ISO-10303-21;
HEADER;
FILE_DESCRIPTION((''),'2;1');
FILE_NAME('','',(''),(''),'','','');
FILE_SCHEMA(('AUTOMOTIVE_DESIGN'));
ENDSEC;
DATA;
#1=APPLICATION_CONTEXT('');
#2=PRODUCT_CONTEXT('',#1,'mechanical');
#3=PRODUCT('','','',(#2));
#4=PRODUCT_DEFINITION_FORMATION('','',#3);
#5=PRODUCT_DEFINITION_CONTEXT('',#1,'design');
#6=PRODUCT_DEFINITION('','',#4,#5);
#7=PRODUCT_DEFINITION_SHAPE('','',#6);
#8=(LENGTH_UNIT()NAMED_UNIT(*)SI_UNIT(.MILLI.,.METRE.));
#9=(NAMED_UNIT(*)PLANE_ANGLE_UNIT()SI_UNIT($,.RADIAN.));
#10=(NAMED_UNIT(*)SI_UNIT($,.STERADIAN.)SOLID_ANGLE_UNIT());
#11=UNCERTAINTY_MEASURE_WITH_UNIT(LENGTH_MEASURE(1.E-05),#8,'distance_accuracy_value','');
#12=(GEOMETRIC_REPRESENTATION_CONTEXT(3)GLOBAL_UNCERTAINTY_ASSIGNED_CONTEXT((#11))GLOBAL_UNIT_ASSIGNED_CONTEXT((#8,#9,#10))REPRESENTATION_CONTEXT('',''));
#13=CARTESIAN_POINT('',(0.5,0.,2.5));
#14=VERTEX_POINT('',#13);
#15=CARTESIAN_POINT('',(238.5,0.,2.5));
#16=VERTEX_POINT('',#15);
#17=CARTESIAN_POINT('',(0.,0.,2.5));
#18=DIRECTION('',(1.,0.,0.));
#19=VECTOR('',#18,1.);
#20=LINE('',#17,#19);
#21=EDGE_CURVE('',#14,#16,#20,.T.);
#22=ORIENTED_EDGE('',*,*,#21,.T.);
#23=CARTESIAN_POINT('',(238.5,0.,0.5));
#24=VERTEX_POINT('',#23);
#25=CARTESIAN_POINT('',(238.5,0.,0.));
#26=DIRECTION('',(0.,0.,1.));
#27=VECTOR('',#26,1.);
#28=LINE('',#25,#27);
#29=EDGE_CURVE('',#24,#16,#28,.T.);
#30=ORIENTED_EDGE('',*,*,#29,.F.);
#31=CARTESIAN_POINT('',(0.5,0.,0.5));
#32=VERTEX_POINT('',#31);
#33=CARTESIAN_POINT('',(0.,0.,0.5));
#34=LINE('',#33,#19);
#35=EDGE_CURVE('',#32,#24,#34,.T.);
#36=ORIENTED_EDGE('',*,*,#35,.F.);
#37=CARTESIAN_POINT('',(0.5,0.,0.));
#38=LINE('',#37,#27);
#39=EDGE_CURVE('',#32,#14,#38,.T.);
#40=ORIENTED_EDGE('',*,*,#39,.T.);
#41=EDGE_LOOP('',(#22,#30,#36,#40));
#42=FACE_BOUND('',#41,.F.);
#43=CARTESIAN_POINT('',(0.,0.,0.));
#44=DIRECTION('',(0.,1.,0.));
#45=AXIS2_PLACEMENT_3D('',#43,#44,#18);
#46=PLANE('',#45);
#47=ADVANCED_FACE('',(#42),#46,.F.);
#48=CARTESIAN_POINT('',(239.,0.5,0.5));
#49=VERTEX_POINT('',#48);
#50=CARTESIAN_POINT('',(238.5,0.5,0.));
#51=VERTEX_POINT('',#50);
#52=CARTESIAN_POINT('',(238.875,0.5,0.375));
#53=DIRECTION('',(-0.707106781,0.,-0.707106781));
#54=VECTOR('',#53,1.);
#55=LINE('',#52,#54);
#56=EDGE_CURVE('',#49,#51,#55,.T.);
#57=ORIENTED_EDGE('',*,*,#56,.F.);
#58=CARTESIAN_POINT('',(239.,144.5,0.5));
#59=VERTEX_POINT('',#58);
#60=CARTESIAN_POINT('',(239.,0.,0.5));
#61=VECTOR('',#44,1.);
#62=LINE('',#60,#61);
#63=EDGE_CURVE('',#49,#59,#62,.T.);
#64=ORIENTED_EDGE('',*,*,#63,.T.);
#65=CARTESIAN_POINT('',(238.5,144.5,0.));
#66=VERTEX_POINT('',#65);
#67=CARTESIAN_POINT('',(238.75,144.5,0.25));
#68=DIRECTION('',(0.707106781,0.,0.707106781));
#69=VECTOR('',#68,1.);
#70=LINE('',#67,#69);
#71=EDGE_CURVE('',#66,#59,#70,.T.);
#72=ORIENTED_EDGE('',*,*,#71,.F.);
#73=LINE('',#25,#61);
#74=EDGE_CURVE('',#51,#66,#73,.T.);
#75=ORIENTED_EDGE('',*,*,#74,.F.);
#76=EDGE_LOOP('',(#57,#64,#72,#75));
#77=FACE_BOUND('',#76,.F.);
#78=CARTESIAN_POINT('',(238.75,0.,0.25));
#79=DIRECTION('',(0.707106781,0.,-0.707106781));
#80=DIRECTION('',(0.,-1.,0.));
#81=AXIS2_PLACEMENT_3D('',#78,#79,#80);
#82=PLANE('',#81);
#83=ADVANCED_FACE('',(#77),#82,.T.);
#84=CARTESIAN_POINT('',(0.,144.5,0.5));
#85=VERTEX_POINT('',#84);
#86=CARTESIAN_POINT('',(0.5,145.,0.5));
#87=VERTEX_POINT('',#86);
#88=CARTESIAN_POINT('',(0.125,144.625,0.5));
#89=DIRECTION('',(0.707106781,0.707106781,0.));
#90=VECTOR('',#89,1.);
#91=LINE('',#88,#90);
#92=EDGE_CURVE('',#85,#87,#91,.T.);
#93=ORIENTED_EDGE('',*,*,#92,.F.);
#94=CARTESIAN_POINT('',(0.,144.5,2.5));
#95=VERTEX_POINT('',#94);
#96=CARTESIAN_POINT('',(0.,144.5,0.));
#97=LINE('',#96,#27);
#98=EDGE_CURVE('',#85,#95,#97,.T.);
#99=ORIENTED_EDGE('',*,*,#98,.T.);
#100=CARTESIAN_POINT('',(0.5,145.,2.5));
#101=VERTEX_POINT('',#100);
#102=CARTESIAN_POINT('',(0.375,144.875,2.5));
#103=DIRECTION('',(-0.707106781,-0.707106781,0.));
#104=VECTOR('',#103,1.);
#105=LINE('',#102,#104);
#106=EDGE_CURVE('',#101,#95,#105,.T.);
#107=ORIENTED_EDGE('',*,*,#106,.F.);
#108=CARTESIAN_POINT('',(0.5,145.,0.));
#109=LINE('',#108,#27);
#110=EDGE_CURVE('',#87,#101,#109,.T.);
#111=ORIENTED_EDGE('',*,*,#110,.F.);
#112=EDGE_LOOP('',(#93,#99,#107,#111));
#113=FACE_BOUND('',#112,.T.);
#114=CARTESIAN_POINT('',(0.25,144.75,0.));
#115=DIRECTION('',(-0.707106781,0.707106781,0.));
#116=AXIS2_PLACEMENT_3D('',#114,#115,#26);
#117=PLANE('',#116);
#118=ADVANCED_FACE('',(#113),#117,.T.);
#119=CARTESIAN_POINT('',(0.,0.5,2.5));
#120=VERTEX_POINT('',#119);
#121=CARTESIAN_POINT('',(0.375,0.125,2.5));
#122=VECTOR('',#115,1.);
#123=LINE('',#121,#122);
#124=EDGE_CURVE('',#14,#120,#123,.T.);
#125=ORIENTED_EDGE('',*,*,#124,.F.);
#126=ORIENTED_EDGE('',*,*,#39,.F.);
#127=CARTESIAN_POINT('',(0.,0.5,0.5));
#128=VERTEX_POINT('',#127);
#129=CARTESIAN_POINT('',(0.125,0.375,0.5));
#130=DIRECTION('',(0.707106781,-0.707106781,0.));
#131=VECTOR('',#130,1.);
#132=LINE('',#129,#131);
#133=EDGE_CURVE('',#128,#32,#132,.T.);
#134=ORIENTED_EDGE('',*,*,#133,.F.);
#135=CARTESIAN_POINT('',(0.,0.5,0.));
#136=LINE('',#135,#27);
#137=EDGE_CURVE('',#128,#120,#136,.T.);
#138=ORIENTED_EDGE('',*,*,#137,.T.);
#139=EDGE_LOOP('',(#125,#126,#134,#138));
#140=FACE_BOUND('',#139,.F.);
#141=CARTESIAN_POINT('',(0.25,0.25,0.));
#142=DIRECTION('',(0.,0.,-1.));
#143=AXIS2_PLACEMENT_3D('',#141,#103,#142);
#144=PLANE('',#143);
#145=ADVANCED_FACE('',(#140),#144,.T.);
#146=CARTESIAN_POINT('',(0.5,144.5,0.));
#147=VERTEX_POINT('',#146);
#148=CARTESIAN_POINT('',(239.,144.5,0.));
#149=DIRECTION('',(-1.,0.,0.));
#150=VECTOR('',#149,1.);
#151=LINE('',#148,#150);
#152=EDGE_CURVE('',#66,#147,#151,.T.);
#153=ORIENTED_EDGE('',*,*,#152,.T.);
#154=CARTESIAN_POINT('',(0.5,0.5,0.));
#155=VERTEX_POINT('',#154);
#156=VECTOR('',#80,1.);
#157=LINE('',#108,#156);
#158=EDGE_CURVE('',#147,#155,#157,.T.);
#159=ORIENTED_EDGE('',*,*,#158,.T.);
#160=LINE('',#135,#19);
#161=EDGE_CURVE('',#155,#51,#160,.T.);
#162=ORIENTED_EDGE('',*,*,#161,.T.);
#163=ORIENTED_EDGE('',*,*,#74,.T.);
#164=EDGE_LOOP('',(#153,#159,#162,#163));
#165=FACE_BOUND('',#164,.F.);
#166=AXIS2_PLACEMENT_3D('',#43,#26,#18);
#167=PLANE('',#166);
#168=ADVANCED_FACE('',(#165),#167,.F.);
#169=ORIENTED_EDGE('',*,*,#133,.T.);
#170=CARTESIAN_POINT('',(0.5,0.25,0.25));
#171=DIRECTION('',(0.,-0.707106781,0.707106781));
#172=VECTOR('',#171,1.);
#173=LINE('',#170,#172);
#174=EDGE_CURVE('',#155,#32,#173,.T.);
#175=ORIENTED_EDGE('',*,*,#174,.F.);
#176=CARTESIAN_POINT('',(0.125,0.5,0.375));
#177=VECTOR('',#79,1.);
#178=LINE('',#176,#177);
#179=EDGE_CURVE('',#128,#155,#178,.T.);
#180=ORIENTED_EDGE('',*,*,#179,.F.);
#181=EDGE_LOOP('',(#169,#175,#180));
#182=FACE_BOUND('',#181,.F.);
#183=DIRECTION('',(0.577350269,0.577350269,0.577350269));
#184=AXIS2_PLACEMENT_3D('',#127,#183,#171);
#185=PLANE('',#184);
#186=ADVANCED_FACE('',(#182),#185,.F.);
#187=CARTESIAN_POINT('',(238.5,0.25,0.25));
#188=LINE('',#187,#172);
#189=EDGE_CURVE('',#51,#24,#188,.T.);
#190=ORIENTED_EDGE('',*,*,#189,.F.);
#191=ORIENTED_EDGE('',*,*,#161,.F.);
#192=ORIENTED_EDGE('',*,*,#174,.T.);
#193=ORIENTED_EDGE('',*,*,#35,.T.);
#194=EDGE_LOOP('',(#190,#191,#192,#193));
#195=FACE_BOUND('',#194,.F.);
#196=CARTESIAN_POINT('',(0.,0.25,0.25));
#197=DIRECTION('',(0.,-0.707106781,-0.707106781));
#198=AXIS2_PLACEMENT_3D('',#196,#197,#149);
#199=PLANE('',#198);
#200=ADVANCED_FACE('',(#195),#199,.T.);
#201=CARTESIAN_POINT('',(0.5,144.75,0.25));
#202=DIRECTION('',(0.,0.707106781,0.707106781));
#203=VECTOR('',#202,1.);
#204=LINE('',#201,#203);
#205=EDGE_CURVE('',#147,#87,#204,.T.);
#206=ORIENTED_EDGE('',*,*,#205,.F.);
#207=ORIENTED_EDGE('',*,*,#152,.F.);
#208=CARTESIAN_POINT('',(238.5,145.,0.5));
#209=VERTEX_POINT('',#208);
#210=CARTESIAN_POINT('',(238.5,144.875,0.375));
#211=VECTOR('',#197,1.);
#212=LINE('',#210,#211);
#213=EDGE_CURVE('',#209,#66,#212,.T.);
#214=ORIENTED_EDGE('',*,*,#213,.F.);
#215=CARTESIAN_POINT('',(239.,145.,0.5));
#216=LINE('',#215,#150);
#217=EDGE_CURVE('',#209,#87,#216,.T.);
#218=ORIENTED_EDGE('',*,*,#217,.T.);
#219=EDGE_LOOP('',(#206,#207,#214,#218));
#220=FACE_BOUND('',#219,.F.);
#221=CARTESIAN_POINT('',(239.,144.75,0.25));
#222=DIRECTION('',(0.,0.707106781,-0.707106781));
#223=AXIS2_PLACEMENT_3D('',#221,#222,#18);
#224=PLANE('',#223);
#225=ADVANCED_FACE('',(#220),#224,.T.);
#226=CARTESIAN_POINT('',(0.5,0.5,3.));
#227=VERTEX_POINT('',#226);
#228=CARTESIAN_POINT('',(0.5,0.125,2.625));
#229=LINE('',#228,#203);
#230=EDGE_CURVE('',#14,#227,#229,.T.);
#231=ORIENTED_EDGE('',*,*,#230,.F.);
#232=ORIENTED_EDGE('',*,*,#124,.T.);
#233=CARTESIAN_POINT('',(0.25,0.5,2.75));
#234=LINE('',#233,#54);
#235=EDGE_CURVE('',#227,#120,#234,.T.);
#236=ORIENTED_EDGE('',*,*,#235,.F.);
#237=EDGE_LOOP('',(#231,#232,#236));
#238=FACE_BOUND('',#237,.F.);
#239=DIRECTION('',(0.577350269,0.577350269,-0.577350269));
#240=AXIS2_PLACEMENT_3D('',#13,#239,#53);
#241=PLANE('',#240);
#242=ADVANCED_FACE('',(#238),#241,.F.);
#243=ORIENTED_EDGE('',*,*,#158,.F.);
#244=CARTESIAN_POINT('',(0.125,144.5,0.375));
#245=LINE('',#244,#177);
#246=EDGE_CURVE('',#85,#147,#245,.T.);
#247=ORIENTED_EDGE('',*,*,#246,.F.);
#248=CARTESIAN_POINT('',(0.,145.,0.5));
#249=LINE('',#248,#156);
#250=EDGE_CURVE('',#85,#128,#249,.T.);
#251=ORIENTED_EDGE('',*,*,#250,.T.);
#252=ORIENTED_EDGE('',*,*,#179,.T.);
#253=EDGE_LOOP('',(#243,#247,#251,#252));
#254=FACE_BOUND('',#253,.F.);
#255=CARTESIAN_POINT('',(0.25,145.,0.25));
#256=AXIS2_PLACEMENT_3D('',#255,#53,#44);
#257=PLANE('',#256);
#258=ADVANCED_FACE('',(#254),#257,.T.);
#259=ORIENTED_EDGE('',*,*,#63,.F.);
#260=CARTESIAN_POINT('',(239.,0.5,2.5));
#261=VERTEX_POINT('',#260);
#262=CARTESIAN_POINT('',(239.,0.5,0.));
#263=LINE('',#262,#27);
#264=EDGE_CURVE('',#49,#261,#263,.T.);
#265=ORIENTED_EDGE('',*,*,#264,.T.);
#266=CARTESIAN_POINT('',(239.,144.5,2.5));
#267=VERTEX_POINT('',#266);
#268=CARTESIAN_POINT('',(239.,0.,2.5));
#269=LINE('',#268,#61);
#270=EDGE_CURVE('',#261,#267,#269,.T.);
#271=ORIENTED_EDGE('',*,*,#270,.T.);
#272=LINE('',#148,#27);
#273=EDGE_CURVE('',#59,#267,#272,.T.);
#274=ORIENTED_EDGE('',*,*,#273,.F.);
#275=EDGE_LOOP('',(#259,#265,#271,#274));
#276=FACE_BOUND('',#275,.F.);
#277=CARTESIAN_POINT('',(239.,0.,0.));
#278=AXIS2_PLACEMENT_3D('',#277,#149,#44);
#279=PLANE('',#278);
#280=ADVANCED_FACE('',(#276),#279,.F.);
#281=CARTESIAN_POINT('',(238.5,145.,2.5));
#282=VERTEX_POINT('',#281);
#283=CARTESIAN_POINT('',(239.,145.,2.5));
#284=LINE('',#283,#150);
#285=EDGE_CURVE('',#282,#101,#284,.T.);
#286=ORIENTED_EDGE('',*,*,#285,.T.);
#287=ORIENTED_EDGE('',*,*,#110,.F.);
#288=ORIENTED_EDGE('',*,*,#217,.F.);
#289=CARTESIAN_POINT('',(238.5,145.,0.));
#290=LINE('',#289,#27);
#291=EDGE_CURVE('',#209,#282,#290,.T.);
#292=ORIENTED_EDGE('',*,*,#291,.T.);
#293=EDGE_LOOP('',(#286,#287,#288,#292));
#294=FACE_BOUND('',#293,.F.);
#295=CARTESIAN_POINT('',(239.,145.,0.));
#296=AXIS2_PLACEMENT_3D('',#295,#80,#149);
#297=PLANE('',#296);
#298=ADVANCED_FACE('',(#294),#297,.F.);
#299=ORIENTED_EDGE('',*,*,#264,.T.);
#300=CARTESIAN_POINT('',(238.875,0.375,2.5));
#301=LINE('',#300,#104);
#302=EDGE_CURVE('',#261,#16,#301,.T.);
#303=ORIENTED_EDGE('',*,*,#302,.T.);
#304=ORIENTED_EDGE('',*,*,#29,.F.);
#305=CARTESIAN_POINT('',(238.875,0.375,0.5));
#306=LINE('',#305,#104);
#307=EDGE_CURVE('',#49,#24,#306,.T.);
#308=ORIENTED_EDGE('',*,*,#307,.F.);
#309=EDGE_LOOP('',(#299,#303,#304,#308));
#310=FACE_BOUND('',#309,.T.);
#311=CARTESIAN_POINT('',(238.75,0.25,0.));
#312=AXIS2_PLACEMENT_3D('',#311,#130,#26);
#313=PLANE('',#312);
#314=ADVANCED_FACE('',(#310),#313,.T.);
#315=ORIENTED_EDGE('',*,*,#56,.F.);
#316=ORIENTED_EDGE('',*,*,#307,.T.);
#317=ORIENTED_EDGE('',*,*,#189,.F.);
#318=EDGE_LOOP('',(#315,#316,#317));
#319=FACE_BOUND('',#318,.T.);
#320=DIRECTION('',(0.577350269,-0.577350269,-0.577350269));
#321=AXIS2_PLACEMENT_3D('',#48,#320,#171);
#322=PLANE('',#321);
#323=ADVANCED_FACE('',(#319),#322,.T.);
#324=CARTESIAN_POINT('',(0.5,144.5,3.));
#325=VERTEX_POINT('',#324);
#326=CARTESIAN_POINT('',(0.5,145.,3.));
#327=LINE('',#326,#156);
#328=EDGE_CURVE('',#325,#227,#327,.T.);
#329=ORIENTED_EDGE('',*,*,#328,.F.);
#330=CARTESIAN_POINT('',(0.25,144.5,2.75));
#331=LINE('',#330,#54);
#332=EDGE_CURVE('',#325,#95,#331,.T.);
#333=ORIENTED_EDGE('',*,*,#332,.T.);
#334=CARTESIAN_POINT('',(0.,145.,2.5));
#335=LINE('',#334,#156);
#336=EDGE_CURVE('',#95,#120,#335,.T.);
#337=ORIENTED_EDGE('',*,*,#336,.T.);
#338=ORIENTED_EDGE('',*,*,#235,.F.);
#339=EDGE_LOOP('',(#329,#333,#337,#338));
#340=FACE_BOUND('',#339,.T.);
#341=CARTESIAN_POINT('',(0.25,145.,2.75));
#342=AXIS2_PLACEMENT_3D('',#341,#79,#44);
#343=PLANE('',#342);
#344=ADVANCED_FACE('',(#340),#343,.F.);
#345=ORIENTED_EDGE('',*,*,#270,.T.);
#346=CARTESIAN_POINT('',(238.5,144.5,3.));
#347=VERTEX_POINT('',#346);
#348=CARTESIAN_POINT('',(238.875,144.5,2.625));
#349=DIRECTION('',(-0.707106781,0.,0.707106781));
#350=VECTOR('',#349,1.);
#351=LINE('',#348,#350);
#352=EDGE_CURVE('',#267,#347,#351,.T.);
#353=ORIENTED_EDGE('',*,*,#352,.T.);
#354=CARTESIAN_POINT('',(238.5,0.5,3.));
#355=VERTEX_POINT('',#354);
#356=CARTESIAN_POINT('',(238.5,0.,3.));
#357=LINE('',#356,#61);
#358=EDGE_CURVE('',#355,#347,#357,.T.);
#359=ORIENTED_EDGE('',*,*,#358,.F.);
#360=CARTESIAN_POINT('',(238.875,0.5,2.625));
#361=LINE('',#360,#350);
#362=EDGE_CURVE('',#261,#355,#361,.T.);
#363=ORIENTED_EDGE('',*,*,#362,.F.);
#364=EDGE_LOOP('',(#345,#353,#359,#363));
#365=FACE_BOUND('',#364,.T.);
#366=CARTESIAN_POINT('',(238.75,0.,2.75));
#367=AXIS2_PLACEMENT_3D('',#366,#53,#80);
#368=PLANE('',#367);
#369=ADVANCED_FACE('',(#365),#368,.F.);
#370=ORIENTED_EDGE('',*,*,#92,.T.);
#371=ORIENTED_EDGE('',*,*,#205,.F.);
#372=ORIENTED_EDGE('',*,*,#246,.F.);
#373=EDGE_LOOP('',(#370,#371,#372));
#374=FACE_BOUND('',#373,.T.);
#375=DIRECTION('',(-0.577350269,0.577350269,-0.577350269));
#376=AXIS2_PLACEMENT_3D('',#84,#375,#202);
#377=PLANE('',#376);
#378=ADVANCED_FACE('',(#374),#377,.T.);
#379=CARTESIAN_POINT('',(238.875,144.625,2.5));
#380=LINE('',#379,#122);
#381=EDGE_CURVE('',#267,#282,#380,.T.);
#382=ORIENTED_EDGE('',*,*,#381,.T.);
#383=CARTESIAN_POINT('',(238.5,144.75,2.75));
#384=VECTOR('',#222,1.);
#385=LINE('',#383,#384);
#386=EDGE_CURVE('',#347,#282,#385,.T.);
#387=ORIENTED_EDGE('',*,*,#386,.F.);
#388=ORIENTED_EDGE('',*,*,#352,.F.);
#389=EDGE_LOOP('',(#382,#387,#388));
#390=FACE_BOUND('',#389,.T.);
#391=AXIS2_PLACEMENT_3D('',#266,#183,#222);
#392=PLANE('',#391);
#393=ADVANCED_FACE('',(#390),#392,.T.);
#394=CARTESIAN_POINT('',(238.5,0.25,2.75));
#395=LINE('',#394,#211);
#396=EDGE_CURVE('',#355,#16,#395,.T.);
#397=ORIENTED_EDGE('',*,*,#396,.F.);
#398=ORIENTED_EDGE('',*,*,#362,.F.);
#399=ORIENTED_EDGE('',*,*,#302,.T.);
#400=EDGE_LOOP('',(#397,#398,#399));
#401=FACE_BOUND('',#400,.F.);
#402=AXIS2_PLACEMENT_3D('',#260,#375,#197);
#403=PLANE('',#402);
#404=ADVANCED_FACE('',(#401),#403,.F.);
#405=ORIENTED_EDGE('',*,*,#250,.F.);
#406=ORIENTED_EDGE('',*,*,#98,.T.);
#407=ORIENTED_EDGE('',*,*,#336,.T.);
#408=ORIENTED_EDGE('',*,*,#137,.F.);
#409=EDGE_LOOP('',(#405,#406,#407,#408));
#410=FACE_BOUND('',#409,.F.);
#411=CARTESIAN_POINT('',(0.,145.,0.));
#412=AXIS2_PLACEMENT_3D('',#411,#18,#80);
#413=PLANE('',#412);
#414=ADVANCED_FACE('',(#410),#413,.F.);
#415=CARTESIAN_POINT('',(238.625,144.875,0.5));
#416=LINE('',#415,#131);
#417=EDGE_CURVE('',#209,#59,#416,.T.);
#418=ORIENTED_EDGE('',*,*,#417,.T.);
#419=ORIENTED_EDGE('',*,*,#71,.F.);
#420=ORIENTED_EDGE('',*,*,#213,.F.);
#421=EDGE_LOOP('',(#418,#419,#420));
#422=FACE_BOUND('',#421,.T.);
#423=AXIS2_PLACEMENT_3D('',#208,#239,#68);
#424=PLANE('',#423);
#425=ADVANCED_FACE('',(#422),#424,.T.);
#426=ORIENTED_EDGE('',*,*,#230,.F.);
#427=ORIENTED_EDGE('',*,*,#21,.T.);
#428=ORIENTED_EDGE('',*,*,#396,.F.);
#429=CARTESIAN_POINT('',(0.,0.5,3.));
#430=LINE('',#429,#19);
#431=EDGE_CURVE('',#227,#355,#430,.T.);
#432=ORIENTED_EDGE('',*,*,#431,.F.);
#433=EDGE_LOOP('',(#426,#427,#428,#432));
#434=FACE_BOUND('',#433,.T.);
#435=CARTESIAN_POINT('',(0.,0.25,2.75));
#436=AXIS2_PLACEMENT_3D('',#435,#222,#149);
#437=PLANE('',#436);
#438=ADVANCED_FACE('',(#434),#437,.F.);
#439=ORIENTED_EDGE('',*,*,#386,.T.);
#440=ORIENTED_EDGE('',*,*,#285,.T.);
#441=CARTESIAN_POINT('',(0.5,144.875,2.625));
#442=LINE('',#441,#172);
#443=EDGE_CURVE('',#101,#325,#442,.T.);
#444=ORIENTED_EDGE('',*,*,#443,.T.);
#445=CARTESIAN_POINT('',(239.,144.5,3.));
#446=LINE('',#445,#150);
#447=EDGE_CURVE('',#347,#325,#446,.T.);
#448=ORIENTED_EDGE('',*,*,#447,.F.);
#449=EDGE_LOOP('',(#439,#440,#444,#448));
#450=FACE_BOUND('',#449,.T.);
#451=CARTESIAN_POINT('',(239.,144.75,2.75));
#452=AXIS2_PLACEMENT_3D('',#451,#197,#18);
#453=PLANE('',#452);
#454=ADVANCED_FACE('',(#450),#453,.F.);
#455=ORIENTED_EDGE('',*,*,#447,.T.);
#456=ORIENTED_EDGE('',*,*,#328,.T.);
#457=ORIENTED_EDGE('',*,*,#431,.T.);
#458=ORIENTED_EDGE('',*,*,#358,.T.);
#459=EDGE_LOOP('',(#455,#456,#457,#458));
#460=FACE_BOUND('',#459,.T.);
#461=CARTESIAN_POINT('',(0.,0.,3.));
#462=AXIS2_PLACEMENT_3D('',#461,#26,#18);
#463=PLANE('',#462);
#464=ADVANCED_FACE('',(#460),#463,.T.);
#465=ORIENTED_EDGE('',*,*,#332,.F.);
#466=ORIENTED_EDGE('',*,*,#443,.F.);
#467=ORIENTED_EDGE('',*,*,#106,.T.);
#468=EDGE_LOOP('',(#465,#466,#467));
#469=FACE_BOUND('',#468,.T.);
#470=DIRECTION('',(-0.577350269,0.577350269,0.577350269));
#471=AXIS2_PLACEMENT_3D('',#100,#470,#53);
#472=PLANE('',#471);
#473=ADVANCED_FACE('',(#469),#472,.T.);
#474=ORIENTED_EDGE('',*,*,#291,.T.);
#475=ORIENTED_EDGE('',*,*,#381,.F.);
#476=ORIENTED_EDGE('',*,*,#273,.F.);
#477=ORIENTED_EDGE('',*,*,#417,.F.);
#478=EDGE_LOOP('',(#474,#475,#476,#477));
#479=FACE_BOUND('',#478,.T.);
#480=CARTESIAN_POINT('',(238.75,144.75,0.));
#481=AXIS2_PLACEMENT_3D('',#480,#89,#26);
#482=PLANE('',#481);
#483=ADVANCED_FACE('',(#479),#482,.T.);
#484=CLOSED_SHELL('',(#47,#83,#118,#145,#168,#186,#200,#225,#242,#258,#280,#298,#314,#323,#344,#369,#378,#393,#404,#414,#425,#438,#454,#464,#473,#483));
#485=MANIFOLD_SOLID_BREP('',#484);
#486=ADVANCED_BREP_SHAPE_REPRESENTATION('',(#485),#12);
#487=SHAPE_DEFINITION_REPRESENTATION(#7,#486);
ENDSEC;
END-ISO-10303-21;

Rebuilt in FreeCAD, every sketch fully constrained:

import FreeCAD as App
import Part
import Sketcher

V = App.Vector
Q = App.Units.Quantity


def add_polygon(sketch, points):
    """Adds a closed chain of lines whose ends are joined by coincident constraints."""
    first, n = sketch.GeometryCount, len(points)
    for a, b in zip(points, points[1:] + points[:1]):
        sketch.addGeometry(Part.LineSegment(App.Vector(*a, 0), App.Vector(*b, 0)), False)
    for i in range(n):
        sketch.addConstraint(Sketcher.Constraint("Coincident", first + i, 2, first + (i + 1) % n, 1))

doc = App.newDocument("Part")
body = doc.addObject("PartDesign::Body", "Body")

# Sketch on XY plane
sketch1 = body.newObject("Sketcher::SketchObject", "Sketch")
sketch1.AttachmentSupport = (doc.getObject("XY_Plane"), [""])
sketch1.MapMode = "FlatFace"
add_polygon(sketch1, [(0, 145), (0, 0), (239, 0), (239, 145)])  # lines 0-3
sketch1.addConstraint([
    Sketcher.Constraint("Vertical", 0),
    Sketcher.Constraint("Horizontal", 1),
    Sketcher.Constraint("Vertical", 2),
    Sketcher.Constraint("Horizontal", 3),
    Sketcher.Constraint("Coincident", 0, 2, -1, 1),
    Sketcher.Constraint("DistanceX", 1, 1, 1, 2, Q("239 mm")),
    Sketcher.Constraint("DistanceY", 0, 2, 0, 1, Q("145 mm")),
])
pad1 = body.newObject("PartDesign::Pad", "Pad")
pad1.Profile = sketch1
pad1.Length = 3
doc.recompute()

chamfer = body.newObject("PartDesign::Chamfer", "Chamfer")
chamfer.Base = (pad1, ["Edge1"])
chamfer.UseAllEdges = True
chamfer.Size = 0.5

doc.recompute()
